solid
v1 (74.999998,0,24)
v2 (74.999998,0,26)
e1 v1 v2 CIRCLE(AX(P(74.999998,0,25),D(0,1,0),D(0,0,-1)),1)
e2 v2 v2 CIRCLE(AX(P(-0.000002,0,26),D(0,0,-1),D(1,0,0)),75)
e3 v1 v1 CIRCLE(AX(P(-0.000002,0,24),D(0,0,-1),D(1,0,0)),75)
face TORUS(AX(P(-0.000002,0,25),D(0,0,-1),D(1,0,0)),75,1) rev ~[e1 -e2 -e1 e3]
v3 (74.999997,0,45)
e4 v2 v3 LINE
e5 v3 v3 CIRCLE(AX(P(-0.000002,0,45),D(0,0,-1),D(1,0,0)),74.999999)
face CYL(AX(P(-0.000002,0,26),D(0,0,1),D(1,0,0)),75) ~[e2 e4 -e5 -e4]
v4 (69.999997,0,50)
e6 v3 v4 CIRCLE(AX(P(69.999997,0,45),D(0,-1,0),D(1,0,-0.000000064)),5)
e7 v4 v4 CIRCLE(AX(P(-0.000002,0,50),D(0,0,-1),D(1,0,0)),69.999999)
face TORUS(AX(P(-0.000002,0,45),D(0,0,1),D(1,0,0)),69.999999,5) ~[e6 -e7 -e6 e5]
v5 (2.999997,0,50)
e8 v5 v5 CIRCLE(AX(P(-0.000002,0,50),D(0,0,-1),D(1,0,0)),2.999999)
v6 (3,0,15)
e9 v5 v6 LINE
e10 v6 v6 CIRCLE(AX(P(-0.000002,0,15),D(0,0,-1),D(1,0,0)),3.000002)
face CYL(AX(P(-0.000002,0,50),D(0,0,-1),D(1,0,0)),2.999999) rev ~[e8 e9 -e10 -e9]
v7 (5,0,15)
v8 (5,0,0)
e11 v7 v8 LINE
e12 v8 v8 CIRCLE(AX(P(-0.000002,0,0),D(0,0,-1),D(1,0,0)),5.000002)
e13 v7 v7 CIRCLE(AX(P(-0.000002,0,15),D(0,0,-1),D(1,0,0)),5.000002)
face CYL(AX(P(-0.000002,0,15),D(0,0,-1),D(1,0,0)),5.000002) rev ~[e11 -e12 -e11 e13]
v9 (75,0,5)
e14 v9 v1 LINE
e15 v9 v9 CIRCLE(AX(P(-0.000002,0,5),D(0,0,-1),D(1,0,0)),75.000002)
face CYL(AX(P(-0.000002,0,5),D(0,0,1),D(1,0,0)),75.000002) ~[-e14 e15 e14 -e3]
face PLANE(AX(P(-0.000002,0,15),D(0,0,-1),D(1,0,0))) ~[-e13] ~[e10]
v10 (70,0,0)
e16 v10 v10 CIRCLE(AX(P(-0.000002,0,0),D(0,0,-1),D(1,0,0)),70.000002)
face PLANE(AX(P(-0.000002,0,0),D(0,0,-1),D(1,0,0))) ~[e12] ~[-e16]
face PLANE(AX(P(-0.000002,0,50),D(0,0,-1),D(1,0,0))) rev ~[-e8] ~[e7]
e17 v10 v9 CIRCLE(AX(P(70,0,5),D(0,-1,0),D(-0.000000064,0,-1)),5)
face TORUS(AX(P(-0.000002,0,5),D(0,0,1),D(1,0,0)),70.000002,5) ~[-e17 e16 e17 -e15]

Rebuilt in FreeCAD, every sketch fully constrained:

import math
import FreeCAD as App
import Part
import Sketcher
from FreeCAD import Vector

doc = App.newDocument("Part")
body = doc.addObject("PartDesign::Body", "Body")

# Sketch on XZ plane
sketch1 = body.newObject("Sketcher::SketchObject", "Sketch")
sketch1.AttachmentSupport = (doc.getObject("XZ_Plane"), [""])
sketch1.MapMode = "FlatFace"
sketch1.addGeometry(Part.LineSegment(Vector(5, 15, 0), Vector(5, 0, 0)), False)
sketch1.addGeometry(Part.LineSegment(Vector(5, 0, 0), Vector(70, 0, 0)), False)
sketch1.addGeometry(Part.ArcOfCircle(Part.Circle(Vector(70, 5, 0), Vector(0, 0, 1), 5), math.radians(-90), math.radians(0)), False)
sketch1.addGeometry(Part.LineSegment(Vector(75, 5, 0), Vector(75, 24, 0)), False)
sketch1.addGeometry(Part.ArcOfCircle(Part.Circle(Vector(75, 25, 0), Vector(0, 0, 1), 1), math.radians(90), math.radians(270)), False)
sketch1.addGeometry(Part.LineSegment(Vector(75, 26, 0), Vector(75, 45, 0)), False)
sketch1.addGeometry(Part.ArcOfCircle(Part.Circle(Vector(70, 45, 0), Vector(0, 0, 1), 5), math.radians(0), math.radians(90)), False)
sketch1.addGeometry(Part.LineSegment(Vector(70, 50, 0), Vector(3, 50, 0)), False)
sketch1.addGeometry(Part.LineSegment(Vector(3, 50, 0), Vector(3, 15, 0)), False)
sketch1.addGeometry(Part.LineSegment(Vector(3, 15, 0), Vector(5, 15, 0)), False)
sketch1.addGeometry(Part.LineSegment(Vector(0, 50, 0), Vector(0, 0, 0)), True)  # axis
sketch1.addConstraint(Sketcher.Constraint("Coincident", 0, 2, 1, 1))
sketch1.addConstraint(Sketcher.Constraint("Tangent", 1, 2, 2, 1))
sketch1.addConstraint(Sketcher.Constraint("Tangent", 2, 2, 3, 1))
sketch1.addConstraint(Sketcher.Constraint("Coincident", 3, 2, 4, 2))
sketch1.addConstraint(Sketcher.Constraint("Coincident", 4, 1, 5, 1))
sketch1.addConstraint(Sketcher.Constraint("Tangent", 5, 2, 6, 1))
sketch1.addConstraint(Sketcher.Constraint("Tangent", 6, 2, 7, 1))
sketch1.addConstraint(Sketcher.Constraint("Coincident", 7, 2, 8, 1))
sketch1.addConstraint(Sketcher.Constraint("Coincident", 8, 2, 9, 1))
sketch1.addConstraint(Sketcher.Constraint("Coincident", 9, 2, 0, 1))
sketch1.addConstraint(Sketcher.Constraint("Vertical", 0))
sketch1.addConstraint(Sketcher.Constraint("Horizontal", 1))
sketch1.addConstraint(Sketcher.Constraint("Vertical", 3))
sketch1.addConstraint(Sketcher.Constraint("Vertical", 5))
sketch1.addConstraint(Sketcher.Constraint("Horizontal", 7))
sketch1.addConstraint(Sketcher.Constraint("Horizontal", 9))
sketch1.addConstraint(Sketcher.Constraint("Vertical", 10))
sketch1.addConstraint(Sketcher.Constraint("Coincident", 10, 2, -1, 1))
sketch1.addConstraint(Sketcher.Constraint("Equal", 2, 6))
sketch1.addConstraint(Sketcher.Constraint("PointOnObject", 0, 2, -1))
sketch1.addConstraint(Sketcher.Constraint("Horizontal", 7, 2, 10, 1))
sketch1.addConstraint(Sketcher.Constraint("Vertical", 4, 3, 2, 2))
sketch1.addConstraint(Sketcher.Constraint("Vertical", 3, 2, 4, 1))
sketch1.addConstraint(Sketcher.Constraint("Equal", 3, 5))
sketch1.addConstraint(Sketcher.Constraint("Radius", 2, 5.0))
sketch1.addConstraint(Sketcher.Constraint("Radius", 4, 1.0))
sketch1.addConstraint(Sketcher.Constraint("DistanceX", 1, 1, 1, 2, 65.0))
sketch1.addConstraint(Sketcher.Constraint("DistanceX", 7, 2, 7, 1, 67.0))
sketch1.addConstraint(Sketcher.Constraint("DistanceX", 9, 1, 9, 2, 2.0))
sketch1.addConstraint(Sketcher.Constraint("DistanceY", 0, 2, 0, 1, 15.0))
sketch1.addConstraint(Sketcher.Constraint("DistanceY", 3, 1, 3, 2, 19.0))
sketch1.addConstraint(Sketcher.Constraint("DistanceX", -1, 1, 2, 3, 70.0))
revolution = body.newObject("PartDesign::Revolution", "Revolution")
revolution.Profile = sketch1
revolution.ReferenceAxis = (sketch1, ["Axis0"])
revolution.Angle = 360

doc.recompute()
